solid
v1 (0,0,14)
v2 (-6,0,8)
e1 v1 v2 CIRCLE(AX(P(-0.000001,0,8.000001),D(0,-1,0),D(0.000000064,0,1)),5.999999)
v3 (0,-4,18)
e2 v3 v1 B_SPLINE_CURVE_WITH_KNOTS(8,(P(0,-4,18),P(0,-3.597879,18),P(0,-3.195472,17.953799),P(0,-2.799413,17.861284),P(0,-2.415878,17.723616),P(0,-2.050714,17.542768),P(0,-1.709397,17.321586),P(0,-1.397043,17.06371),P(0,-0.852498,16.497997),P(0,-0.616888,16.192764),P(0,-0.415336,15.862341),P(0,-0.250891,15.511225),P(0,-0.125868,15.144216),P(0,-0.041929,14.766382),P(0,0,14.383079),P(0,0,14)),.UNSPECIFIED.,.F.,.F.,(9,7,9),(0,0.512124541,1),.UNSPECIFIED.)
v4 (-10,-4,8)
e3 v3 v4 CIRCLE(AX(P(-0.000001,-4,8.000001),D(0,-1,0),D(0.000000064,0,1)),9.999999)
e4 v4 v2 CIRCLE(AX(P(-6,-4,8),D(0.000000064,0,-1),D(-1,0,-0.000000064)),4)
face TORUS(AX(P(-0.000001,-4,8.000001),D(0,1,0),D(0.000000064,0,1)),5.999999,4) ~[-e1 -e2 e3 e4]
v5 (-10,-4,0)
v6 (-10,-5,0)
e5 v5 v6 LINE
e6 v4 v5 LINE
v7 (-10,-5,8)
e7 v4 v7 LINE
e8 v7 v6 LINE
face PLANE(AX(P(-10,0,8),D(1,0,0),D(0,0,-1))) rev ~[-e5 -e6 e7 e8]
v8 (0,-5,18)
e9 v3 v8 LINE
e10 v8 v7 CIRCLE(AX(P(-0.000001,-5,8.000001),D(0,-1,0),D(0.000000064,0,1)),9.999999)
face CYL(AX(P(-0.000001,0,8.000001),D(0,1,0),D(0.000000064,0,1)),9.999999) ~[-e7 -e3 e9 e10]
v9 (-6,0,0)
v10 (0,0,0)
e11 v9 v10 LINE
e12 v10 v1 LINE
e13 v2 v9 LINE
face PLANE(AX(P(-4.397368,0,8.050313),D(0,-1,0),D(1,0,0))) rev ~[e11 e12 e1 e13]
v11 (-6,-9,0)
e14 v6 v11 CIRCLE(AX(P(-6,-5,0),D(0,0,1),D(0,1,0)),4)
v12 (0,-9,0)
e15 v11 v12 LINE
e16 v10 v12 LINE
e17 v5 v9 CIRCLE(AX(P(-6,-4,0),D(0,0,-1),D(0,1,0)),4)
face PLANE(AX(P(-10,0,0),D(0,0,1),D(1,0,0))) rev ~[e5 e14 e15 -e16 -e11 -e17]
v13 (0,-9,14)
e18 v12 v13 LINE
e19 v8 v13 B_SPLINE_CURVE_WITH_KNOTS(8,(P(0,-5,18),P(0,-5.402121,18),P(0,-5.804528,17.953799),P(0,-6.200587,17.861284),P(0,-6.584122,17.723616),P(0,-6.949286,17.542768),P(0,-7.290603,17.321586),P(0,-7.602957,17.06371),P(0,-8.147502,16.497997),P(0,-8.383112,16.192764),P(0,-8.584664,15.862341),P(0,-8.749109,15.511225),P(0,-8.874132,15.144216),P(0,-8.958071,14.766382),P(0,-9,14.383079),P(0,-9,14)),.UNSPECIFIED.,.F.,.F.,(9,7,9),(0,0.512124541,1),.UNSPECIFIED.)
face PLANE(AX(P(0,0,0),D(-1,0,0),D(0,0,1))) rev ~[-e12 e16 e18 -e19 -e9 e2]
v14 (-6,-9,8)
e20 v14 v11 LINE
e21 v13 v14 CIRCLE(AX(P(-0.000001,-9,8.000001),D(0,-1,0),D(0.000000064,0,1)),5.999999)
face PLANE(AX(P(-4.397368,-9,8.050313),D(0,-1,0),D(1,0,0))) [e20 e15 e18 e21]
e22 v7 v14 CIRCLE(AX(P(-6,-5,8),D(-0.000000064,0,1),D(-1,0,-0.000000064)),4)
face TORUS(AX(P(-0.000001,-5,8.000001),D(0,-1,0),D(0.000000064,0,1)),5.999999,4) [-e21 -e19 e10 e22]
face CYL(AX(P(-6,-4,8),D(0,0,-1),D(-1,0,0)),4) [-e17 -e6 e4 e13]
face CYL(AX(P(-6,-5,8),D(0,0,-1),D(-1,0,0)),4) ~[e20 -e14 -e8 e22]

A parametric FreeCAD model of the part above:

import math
import FreeCAD as App
import Part
import Sketcher
from FreeCAD import Vector


def edges_at(feature, points):
    """Names of the edges that pass closest to the given points."""
    edges = feature.Shape.Edges
    near = lambda p: min(range(len(edges)), key=lambda i: edges[i].distToShape(Part.Vertex(*p))[0])
    return sorted({f"Edge{near(p) + 1}" for p in points})

doc = App.newDocument("Part")
body = doc.addObject("PartDesign::Body", "Body")

sketch1 = body.newObject("Sketcher::SketchObject", "Sketch")
sketch1.AttachmentSupport = (doc.getObject("XZ_Plane"), [""])
sketch1.MapMode = "FlatFace"
sketch1.addGeometry([
    Part.LineSegment(Vector(-10, 8, 0), Vector(-10, 0, 0)),
    Part.LineSegment(Vector(-10, 0, 0), Vector(0, 0, 0)),
    Part.LineSegment(Vector(0, 0, 0), Vector(0, 18, 0)),
    Part.ArcOfCircle(Part.Circle(Vector(-0.000001, 8.000001, 0), Vector(0, 0, 1), 9.999999), math.radians(89.999996), math.radians(180.000004)),
], False)
sketch1.addConstraint([
    Sketcher.Constraint("Coincident", 0, 2, 1, 1),
    Sketcher.Constraint("Coincident", 1, 2, 2, 1),
    Sketcher.Constraint("Coincident", 2, 2, 3, 1),
    Sketcher.Constraint("Tangent", 3, 2, 0, 1),
    Sketcher.Constraint("Vertical", 0),
    Sketcher.Constraint("Horizontal", 1),
    Sketcher.Constraint("Vertical", 2),
    Sketcher.Constraint("Coincident", 1, 2, -1, 1),
    Sketcher.Constraint("PointOnObject", 3, 3, -2),
    Sketcher.Constraint("Radius", 3, 9.999999),
    Sketcher.Constraint("DistanceY", 0, 2, 0, 1, 8.0),
])
pad1 = body.newObject("PartDesign::Pad", "Pad")
pad1.Profile = sketch1
pad1.Length = 9
doc.recompute()

fillet = body.newObject("PartDesign::Fillet", "Fillet")
fillet.Base = (pad1, edges_at(pad1, [
    (-7.071, 0, 15.071),
    (-10, 0, 4),
    (-10, -9, 4),
    (-7.071, -9, 15.071),
]))
fillet.Radius = 4

doc.recompute()
